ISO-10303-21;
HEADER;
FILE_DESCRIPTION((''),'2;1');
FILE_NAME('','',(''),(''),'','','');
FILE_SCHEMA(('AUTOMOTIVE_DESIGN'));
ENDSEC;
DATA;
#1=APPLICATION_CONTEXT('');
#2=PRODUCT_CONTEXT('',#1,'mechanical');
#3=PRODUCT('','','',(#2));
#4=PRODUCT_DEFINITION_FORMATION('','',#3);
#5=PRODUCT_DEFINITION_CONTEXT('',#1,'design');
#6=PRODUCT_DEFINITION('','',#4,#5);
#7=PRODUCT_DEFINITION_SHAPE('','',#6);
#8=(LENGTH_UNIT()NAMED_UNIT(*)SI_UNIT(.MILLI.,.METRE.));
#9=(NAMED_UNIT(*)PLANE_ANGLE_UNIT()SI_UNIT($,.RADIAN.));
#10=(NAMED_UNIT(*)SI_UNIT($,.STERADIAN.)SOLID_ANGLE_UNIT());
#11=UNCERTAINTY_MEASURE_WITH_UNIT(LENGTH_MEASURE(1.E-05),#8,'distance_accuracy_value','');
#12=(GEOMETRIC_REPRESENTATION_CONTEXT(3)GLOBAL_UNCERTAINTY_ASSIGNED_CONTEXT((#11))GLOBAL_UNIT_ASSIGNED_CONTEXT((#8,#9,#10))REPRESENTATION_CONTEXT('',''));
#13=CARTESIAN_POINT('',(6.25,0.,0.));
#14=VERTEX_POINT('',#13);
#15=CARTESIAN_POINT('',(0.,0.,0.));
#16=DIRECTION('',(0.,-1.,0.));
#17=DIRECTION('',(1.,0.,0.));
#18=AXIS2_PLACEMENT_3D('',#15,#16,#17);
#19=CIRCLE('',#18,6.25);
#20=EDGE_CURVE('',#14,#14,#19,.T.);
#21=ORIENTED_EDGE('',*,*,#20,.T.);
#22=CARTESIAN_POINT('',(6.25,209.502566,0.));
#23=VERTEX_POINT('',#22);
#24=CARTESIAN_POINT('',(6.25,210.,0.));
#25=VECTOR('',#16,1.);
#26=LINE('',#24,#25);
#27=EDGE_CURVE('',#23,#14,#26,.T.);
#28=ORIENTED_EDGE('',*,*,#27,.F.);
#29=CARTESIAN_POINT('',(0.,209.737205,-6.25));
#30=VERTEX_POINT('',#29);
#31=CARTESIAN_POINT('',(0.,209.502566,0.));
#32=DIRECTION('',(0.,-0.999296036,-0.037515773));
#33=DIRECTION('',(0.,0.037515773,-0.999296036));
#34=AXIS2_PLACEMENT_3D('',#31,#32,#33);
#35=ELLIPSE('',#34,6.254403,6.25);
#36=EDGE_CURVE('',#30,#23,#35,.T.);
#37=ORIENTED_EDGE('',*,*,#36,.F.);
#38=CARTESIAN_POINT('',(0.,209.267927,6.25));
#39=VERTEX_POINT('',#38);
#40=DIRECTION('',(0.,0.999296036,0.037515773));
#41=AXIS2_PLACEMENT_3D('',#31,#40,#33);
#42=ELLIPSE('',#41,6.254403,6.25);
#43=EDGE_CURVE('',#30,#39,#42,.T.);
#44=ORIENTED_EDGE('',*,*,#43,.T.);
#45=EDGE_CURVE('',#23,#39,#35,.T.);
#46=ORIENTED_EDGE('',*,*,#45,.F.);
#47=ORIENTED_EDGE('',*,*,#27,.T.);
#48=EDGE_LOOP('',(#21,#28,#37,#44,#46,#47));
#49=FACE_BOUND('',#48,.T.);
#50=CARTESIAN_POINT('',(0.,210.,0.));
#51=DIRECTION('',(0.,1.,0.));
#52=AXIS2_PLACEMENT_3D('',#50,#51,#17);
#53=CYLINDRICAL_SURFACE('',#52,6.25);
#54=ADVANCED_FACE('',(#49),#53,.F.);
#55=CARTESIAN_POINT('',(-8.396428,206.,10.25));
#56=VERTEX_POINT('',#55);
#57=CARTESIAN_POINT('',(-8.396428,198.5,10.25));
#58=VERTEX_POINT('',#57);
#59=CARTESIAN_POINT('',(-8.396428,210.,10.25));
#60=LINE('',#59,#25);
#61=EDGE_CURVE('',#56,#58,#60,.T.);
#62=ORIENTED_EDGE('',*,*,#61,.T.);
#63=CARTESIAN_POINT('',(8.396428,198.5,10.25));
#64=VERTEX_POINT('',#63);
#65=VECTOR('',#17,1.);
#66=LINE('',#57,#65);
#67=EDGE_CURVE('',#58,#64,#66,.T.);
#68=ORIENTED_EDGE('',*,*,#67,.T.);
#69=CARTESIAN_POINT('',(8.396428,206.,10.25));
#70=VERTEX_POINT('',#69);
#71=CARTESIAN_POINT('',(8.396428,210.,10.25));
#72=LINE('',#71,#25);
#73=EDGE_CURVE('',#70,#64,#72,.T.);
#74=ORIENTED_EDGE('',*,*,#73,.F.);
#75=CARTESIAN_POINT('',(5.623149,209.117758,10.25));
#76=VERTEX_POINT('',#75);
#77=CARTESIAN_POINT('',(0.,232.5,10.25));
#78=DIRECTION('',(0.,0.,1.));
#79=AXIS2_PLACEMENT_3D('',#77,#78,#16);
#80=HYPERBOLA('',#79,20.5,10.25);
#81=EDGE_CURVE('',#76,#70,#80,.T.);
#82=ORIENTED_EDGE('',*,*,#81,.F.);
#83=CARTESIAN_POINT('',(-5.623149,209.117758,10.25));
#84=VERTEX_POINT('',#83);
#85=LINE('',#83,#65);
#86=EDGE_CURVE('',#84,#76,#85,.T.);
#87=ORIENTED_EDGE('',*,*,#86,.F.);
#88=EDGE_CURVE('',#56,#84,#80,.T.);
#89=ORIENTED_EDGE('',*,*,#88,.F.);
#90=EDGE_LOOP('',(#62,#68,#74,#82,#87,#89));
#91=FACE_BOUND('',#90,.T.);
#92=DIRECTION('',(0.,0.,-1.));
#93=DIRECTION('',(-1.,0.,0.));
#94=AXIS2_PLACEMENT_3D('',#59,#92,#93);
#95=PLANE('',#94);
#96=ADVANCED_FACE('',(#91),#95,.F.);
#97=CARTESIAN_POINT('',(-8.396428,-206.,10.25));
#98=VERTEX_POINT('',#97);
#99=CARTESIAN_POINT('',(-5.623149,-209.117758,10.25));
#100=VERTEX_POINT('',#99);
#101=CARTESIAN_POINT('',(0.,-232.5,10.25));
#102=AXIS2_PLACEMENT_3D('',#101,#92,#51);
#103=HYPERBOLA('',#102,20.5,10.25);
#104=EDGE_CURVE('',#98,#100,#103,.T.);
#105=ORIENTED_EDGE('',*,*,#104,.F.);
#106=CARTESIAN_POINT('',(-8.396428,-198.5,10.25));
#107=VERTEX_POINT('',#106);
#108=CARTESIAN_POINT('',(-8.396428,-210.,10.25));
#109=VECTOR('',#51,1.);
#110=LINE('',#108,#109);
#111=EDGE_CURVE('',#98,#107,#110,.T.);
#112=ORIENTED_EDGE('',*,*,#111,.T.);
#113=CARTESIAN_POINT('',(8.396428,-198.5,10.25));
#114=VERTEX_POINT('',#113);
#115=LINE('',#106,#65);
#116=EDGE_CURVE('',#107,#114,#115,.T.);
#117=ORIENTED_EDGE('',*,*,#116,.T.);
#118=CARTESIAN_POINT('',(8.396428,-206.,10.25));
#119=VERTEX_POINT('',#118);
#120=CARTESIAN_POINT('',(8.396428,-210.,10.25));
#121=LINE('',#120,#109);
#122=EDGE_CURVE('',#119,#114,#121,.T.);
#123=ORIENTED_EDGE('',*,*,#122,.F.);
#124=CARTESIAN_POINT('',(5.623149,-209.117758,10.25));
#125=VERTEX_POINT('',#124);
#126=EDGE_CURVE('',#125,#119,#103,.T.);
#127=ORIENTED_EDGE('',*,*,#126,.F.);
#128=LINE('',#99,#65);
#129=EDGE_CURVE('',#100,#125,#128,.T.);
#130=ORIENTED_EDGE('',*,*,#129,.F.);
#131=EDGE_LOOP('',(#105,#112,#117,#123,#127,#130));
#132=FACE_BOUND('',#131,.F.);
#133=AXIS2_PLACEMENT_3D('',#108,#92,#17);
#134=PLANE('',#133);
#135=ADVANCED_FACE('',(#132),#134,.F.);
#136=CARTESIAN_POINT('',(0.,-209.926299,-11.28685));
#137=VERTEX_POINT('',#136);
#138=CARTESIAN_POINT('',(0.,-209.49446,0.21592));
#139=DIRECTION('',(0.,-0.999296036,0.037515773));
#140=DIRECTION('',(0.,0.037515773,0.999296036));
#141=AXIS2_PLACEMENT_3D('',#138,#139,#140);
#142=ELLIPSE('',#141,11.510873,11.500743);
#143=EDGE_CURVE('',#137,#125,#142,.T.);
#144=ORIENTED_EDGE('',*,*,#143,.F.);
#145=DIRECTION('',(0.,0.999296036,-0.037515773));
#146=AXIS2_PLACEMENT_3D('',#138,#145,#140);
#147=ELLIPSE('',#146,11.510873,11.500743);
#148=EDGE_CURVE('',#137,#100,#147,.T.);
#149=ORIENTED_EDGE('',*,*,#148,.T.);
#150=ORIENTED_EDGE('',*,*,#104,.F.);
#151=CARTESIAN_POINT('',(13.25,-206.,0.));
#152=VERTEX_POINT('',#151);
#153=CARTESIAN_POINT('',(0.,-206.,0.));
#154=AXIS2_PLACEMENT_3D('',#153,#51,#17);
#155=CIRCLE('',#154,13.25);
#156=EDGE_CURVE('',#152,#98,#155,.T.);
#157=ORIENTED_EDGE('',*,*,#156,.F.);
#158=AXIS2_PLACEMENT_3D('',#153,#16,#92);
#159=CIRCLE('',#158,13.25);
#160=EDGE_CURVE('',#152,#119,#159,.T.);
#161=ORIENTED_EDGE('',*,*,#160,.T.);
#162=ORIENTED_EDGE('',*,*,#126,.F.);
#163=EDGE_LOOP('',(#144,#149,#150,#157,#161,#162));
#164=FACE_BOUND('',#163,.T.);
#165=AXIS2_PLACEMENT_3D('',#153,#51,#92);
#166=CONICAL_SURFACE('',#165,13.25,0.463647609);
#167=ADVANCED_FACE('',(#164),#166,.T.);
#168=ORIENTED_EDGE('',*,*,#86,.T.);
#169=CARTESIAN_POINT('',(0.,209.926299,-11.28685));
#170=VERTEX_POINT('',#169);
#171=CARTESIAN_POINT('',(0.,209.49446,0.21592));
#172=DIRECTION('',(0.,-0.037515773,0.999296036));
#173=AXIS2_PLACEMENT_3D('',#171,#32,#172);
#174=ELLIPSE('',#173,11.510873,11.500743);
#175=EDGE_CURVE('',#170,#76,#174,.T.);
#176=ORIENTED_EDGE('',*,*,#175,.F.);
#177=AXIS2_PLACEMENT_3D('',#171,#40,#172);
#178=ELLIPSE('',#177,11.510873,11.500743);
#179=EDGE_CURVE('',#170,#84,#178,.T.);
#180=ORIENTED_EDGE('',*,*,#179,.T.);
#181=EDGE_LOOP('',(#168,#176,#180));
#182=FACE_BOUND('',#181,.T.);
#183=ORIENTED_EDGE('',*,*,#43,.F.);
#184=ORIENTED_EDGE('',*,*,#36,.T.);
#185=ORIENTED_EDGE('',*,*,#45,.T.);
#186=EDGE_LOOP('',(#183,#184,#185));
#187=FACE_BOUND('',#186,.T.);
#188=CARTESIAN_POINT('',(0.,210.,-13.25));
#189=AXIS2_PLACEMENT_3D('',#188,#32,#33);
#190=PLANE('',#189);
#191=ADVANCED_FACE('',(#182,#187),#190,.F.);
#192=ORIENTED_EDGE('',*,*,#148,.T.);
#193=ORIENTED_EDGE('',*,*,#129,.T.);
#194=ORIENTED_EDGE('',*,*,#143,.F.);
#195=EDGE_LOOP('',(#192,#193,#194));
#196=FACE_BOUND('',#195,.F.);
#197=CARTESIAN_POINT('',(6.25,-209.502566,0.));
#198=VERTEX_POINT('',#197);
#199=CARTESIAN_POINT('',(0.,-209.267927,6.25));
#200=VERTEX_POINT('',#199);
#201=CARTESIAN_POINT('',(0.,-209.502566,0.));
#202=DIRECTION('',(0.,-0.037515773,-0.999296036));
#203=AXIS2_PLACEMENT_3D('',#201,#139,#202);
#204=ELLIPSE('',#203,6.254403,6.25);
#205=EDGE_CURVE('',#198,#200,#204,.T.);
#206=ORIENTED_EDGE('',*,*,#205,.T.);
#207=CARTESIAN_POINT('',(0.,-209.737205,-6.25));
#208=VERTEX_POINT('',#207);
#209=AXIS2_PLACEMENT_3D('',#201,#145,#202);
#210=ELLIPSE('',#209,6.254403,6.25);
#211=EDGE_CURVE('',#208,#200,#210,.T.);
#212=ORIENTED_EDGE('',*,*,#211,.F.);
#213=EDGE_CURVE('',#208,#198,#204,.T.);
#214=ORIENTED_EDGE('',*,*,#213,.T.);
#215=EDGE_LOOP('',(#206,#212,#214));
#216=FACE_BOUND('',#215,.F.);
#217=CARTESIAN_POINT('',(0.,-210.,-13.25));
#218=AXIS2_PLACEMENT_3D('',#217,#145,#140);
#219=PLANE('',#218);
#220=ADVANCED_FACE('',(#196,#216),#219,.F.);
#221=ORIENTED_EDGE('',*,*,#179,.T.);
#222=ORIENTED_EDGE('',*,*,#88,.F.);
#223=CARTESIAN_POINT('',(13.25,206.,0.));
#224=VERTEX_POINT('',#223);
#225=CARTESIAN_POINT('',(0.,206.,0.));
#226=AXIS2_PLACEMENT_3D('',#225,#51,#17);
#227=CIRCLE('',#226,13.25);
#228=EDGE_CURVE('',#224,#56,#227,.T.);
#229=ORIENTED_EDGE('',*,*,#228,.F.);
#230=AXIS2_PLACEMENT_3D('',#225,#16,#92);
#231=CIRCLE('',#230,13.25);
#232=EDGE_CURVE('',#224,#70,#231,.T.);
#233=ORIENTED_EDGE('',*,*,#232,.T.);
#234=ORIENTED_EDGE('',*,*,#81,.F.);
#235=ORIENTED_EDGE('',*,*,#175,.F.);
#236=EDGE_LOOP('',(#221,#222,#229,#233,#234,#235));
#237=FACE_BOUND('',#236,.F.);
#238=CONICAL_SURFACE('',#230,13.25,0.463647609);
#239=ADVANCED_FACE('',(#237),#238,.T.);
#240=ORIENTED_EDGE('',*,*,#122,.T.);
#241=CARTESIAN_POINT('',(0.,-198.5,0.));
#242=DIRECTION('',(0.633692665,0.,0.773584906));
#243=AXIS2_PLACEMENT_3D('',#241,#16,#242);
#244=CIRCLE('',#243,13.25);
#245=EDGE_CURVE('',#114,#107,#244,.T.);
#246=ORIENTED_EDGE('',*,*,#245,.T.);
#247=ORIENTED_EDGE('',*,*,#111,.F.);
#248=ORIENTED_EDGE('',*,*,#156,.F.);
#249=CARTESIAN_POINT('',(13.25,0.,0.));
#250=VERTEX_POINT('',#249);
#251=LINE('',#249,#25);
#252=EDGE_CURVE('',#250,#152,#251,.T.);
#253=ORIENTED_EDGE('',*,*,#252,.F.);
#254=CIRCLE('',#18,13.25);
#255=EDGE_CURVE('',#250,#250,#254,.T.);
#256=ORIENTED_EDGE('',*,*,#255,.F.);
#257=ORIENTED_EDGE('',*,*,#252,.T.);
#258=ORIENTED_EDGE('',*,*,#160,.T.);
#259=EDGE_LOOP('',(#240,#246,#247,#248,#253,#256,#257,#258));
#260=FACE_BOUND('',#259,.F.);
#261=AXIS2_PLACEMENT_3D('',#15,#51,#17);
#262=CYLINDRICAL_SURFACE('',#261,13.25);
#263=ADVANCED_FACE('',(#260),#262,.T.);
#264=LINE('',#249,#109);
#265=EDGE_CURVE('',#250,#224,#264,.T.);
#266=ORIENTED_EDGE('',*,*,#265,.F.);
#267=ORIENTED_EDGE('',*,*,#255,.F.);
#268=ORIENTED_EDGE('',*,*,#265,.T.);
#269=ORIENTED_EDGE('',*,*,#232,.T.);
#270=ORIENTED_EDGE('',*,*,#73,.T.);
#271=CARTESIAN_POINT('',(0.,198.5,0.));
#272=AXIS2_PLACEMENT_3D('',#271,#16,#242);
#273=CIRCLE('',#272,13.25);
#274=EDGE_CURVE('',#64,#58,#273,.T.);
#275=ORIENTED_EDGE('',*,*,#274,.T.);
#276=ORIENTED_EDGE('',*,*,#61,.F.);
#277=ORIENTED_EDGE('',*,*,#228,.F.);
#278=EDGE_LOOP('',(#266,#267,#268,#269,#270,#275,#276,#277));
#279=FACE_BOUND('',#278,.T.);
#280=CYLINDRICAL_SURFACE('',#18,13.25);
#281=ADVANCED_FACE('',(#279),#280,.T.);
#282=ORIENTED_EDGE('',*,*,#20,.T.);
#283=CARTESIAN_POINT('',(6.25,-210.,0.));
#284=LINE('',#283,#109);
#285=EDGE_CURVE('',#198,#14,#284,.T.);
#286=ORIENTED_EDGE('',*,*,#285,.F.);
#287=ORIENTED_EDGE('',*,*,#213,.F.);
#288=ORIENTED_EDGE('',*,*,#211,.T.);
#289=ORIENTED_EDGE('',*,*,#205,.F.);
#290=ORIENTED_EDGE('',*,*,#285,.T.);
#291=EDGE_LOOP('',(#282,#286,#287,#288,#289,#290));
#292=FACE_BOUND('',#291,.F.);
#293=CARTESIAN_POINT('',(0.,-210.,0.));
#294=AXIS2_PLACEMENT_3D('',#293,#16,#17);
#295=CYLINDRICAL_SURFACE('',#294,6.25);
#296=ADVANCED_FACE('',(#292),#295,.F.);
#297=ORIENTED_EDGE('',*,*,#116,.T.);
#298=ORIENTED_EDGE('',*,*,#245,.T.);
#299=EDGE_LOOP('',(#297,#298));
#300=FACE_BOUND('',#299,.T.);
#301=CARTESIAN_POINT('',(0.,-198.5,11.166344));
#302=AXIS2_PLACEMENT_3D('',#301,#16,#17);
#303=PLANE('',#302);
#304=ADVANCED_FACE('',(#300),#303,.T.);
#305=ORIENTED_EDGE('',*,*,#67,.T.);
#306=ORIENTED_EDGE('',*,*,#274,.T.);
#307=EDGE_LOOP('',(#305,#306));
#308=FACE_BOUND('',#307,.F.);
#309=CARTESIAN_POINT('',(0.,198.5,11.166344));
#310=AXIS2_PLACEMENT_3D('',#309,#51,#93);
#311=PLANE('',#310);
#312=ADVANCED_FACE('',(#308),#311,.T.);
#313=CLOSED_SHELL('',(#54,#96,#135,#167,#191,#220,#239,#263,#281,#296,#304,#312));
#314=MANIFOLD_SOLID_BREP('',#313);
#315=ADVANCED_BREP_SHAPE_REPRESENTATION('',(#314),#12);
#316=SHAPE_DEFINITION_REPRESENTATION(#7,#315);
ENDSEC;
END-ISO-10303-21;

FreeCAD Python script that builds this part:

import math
import FreeCAD as App
import Part
import Sketcher
Q = App.Units.Quantity


def add_polygon(sketch, points):
    """Adds a closed chain of lines whose ends are joined by coincident constraints."""
    first, n = sketch.GeometryCount, len(points)
    for a, b in zip(points, points[1:] + points[:1]):
        sketch.addGeometry(Part.LineSegment(App.Vector(*a, 0), App.Vector(*b, 0)), False)
    for i in range(n):
        sketch.addConstraint(Sketcher.Constraint("Coincident", first + i, 2, first + (i + 1) % n, 1))

doc = App.newDocument("Part")
body = doc.addObject("PartDesign::Body", "Body")

sketch1 = doc.addObject("Sketcher::SketchObject", "Sketch")
body.addObject(sketch1)
sketch1.AttachmentSupport = (doc.XZ_Plane, [""])
sketch1.MapMode = "FlatFace"
sketch1.addGeometry(Part.Circle(App.Vector(0, 0, 0), App.Vector(0, 0, 1), 13), False)
sketch1.addConstraint(Sketcher.Constraint("Coincident", 0, 3, -1, 1))
sketch1.addConstraint(Sketcher.Constraint("Diameter", 0, 26.5))
pad1 = doc.addObject("PartDesign::Pad", "Pad")
body.addObject(pad1)
pad1.Profile = sketch1
pad1.Length = 210

sketch2 = doc.addObject("Sketcher::SketchObject", "Sketch001")
body.addObject(sketch2)
sketch2.AttachmentSupport = (doc.XZ_Plane, [""])
sketch2.MapMode = "FlatFace"
sketch2.AttachmentOffset = App.Placement(App.Vector(0, 0, 210), App.Rotation())
sketch2.addGeometry(Part.ArcOfCircle(Part.Circle(App.Vector(0, 0, 0), App.Vector(0, 0, 1), 13), math.radians(51), math.radians(129)), False)
sketch2.addGeometry(Part.LineSegment(App.Vector(-8, 10, 0), App.Vector(8, 10, 0)), False)
sketch2.addConstraint(Sketcher.Constraint("Coincident", 0, 1, 1, 2))
sketch2.addConstraint(Sketcher.Constraint("Coincident", 1, 1, 0, 2))
sketch2.addConstraint(Sketcher.Constraint("Horizontal", 1))
sketch2.addConstraint(Sketcher.Constraint("Coincident", 0, 3, -1, 1))
sketch2.addConstraint(Sketcher.Constraint("Radius", 0, 13.25))
sketch2.addConstraint(Sketcher.Constraint("DistanceY", -1, 1, 0, 1, 10.25))
pocket1 = doc.addObject("PartDesign::Pocket", "Pocket")
body.addObject(pocket1)
pocket1.Profile = sketch2
pocket1.Length = 11.5

sketch3 = doc.addObject("Sketcher::SketchObject", "Sketch002")
body.addObject(sketch3)
sketch3.AttachmentSupport = (doc.XZ_Plane, [""])
sketch3.MapMode = "FlatFace"
sketch3.AttachmentOffset = App.Placement(App.Vector(0, 0, 210), App.Rotation())
sketch3.addGeometry(Part.Circle(App.Vector(0, 0, 0), App.Vector(0, 0, 1), 6), False)
sketch3.addConstraint(Sketcher.Constraint("Coincident", 0, 3, -1, 1))
sketch3.addConstraint(Sketcher.Constraint("Diameter", 0, 12.5))
pocket2 = doc.addObject("PartDesign::Pocket", "Pocket001")
body.addObject(pocket2)
pocket2.Profile = sketch3
pocket2.Type = "ThroughAll"

sketch4 = doc.addObject("Sketcher::SketchObject", "Sketch003")
body.addObject(sketch4)
sketch4.AttachmentSupport = (doc.YZ_Plane, [""])
sketch4.MapMode = "FlatFace"
add_polygon(sketch4, [(-210, -15.6), (-206, -13.2), (-210, -11.2)])
sketch4.addConstraint(Sketcher.Constraint("Vertical", 2))
sketch4.addConstraint(Sketcher.Constraint("DistanceX", 0, 2, -1, 1, 206.0))
sketch4.addConstraint(Sketcher.Constraint("DistanceX", 1, 2, -1, 1, 210.0))
sketch4.addConstraint(Sketcher.Constraint("DistanceY", 0, 2, 1, 2, 2.0))
sketch4.addConstraint(Sketcher.Constraint("DistanceY", 0, 2, -1, 1, 13.25))
sketch4.addConstraint(Sketcher.Constraint("DistanceY", 2, 2, 2, 1, 4.366589))
groove = doc.addObject("PartDesign::Groove", "Groove")
body.addObject(groove)
groove.Profile = sketch4
groove.ReferenceAxis = (sketch4, ["H_Axis"])
groove.Angle = 360

sketch5 = doc.addObject("Sketcher::SketchObject", "Sketch004")
body.addObject(sketch5)
sketch5.AttachmentSupport = (doc.YZ_Plane, [""])
sketch5.MapMode = "FlatFace"
add_polygon(sketch5, [(-209, 13.2), (-210, 13.2), (-210, -13.2)])
sketch5.addConstraint(Sketcher.Constraint("Horizontal", 0))
sketch5.addConstraint(Sketcher.Constraint("Vertical", 1))
sketch5.addConstraint(Sketcher.Constraint("DistanceY", 1, 2, 1, 1, 26.5))
sketch5.addConstraint(Sketcher.Constraint("DistanceX", 0, 2, -1, 1, 210.0))
sketch5.addConstraint(Sketcher.Constraint("Angle", 2, Q("87.85 deg")))
sketch5.addConstraint(Sketcher.Constraint("DistanceY", -1, 1, 0, 2, 13.25))
pocket3 = doc.addObject("PartDesign::Pocket", "Pocket002")
body.addObject(pocket3)
pocket3.Profile = sketch5
pocket3.Type = "ThroughAll"
pocket3.Midplane = True
body2 = doc.addObject("PartDesign::Body", "Body001")
doc.recompute()

body2.BaseFeature = body
doc.recompute()

mirroring = doc.addObject("Part::Mirroring", "Mirroring")
mirroring.Source = body
mirroring.Base = App.Vector(0, 0, 0)
mirroring.Normal = App.Vector(0, -1, 0)
body3 = doc.addObject("PartDesign::Body", "Body002")
body3.BaseFeature = mirroring
boolean = doc.addObject("PartDesign::Boolean", "Boolean")
body2.addObject(boolean)
boolean.Type = "Fuse"
boolean.addObjects([body3])
doc.recompute()
mirroring.Visibility = False

doc.recompute()
